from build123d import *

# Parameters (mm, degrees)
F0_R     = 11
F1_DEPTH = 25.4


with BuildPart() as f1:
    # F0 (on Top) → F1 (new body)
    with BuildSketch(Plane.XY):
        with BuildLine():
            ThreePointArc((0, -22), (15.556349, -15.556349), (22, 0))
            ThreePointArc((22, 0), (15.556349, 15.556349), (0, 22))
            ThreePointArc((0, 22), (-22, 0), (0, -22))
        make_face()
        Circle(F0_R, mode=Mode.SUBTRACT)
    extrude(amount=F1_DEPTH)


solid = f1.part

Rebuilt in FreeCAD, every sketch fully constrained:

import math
import FreeCAD as App
import Part
import Sketcher
Q = App.Units.Quantity

doc = App.newDocument("Part")
body = doc.addObject("PartDesign::Body", "Body")

sketch1 = doc.addObject("Sketcher::SketchObject", "Sketch")
body.addObject(sketch1)
sketch1.AttachmentSupport = (doc.XY_Plane, [""])
sketch1.MapMode = "FlatFace"
sketch1.addGeometry([
    Part.ArcOfCircle(Part.Circle(App.Vector(0, 0, 0), App.Vector(0, 0, 1), 22), math.radians(-90), math.radians(0)),
    Part.ArcOfCircle(Part.Circle(App.Vector(0, 0, 0), App.Vector(0, 0, 1), 22), math.radians(0), math.radians(90)),
    Part.ArcOfCircle(Part.Circle(App.Vector(0, 0, 0), App.Vector(0, 0, 1), 22), math.radians(90), math.radians(270)),
    Part.Circle(App.Vector(0, 0, 0), App.Vector(0, 0, 1), 11),
], False)
sketch1.addConstraint([
    Sketcher.Constraint("Tangent", 0, 2, 1, 1),
    Sketcher.Constraint("Tangent", 1, 2, 2, 1),
    Sketcher.Constraint("Tangent", 2, 2, 0, 1),
    Sketcher.Constraint("Coincident", 0, 3, -1, 1),
    Sketcher.Constraint("Coincident", 3, 3, -1, 1),
    Sketcher.Constraint("PointOnObject", 0, 2, -1),
    Sketcher.Constraint("PointOnObject", 1, 2, -2),
    Sketcher.Constraint("PointOnObject", 2, 2, -2),
    Sketcher.Constraint("Diameter", 3, Q("22 mm")),
    Sketcher.Constraint("Radius", 0, Q("22.000001 mm")),
])
pad1 = doc.addObject("PartDesign::Pad", "Pad")
body.addObject(pad1)
pad1.Profile = sketch1
pad1.Length = 25.4

doc.recompute()
